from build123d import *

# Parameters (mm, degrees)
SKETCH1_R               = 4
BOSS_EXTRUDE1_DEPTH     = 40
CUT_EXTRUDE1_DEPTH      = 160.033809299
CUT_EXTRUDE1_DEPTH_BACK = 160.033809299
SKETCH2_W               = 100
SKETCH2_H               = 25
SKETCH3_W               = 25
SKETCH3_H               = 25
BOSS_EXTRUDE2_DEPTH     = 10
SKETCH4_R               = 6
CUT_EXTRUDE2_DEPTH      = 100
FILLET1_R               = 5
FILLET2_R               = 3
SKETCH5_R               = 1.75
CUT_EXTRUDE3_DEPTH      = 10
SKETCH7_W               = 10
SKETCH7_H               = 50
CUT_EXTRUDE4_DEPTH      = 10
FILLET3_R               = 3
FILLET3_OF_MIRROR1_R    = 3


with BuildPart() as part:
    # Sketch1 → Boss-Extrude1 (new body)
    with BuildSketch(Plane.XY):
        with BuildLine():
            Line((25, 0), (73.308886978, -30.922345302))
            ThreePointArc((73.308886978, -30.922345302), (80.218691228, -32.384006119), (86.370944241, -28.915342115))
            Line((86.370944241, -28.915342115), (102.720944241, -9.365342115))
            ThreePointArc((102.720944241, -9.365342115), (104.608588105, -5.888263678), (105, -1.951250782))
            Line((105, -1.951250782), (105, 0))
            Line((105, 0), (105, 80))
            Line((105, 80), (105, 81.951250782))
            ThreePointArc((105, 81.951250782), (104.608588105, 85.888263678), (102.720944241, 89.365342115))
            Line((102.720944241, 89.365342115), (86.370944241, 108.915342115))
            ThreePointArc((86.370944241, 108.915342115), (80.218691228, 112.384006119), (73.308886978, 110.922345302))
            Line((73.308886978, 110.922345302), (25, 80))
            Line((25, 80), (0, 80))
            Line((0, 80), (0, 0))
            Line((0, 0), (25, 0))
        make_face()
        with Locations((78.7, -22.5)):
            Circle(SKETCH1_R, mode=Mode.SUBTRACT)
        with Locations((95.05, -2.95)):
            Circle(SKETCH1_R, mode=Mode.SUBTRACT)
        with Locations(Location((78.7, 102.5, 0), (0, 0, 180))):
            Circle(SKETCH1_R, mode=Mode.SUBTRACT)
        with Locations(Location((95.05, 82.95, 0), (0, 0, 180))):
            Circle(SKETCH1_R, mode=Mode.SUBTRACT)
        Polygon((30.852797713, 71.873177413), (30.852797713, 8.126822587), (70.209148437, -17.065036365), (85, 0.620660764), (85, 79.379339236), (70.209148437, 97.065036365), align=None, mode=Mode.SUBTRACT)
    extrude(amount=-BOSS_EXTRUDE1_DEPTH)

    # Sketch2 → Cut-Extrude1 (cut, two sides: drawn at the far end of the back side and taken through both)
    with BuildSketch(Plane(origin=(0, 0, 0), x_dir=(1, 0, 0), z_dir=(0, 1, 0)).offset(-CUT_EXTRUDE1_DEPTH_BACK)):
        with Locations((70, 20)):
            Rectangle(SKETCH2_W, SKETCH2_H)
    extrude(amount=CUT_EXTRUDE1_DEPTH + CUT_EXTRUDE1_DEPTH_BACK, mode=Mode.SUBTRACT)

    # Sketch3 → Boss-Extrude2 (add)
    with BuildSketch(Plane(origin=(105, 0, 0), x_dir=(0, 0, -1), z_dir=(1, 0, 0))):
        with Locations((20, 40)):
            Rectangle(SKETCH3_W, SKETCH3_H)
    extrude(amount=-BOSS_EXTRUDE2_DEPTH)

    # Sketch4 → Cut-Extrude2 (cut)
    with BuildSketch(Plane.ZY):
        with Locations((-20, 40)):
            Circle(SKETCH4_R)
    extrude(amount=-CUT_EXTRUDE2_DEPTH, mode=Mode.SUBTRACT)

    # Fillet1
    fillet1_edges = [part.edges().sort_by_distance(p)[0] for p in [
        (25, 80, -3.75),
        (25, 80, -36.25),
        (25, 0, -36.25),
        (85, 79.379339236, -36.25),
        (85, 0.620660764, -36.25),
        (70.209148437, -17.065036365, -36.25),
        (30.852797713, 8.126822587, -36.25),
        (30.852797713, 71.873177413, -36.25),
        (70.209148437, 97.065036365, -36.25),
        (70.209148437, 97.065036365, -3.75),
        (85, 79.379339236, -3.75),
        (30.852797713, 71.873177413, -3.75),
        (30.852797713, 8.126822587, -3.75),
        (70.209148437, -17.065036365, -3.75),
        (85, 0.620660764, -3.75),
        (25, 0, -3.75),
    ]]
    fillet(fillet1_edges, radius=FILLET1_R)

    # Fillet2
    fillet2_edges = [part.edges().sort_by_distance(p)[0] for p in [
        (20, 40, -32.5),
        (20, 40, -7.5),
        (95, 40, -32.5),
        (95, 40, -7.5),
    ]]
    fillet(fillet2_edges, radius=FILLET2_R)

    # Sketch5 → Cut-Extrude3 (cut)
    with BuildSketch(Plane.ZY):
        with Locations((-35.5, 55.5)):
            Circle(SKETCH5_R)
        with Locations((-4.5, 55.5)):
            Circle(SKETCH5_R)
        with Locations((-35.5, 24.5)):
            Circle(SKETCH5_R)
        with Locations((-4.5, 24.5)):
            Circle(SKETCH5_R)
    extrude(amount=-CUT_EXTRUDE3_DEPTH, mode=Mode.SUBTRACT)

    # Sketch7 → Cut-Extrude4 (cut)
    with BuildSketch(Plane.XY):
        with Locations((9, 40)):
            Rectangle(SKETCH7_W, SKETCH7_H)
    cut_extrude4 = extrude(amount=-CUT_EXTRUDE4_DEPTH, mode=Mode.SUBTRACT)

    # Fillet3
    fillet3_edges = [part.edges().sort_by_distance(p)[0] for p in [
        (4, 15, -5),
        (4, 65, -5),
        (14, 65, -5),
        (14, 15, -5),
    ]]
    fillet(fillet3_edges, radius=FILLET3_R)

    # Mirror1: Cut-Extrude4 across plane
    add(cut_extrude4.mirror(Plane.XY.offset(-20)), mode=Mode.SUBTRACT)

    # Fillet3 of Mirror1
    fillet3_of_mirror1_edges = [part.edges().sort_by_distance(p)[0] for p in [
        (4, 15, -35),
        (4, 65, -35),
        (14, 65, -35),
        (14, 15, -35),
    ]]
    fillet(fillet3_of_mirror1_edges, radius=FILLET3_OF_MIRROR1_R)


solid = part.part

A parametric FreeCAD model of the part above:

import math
import FreeCAD as App
import Part
import Sketcher
from FreeCAD import Vector


def edges_at(feature, points):
    """Names of the edges that pass closest to the given points."""
    edges = feature.Shape.Edges
    near = lambda p: min(range(len(edges)), key=lambda i: edges[i].distToShape(Part.Vertex(*p))[0])
    return sorted({f"Edge{near(p) + 1}" for p in points})

doc = App.newDocument("Part")
body = doc.addObject("PartDesign::Body", "Body")

# Sketch on XY plane
sketch1 = body.newObject("Sketcher::SketchObject", "Sketch")
sketch1.AttachmentSupport = (doc.getObject("XY_Plane"), [""])
sketch1.MapMode = "FlatFace"
sketch1.addGeometry(Part.LineSegment(Vector(25, 0, 0), Vector(73.308887, -30.922345, 0)), False)
sketch1.addGeometry(Part.ArcOfCircle(Part.Circle(Vector(78.7, -22.5, 0), Vector(0, 0, 1), 10), math.radians(-122.623162), math.radians(-39.906317)), False)
sketch1.addGeometry(Part.LineSegment(Vector(86.370944, -28.915342, 0), Vector(102.720944, -9.365342, 0)), False)
sketch1.addGeometry(Part.ArcOfCircle(Part.Circle(Vector(95.05, -2.95, 0), Vector(0, 0, 1), 10), math.radians(-39.906317), math.radians(5.731968)), False)
sketch1.addGeometry(Part.LineSegment(Vector(105, -1.951251, 0), Vector(105, 81.951251, 0)), False)
sketch1.addGeometry(Part.ArcOfCircle(Part.Circle(Vector(95.05, 82.95, 0), Vector(0, 0, 1), 10), math.radians(-5.731968), math.radians(39.906317)), False)
sketch1.addGeometry(Part.LineSegment(Vector(102.720944, 89.365342, 0), Vector(86.370944, 108.915342, 0)), False)
sketch1.addGeometry(Part.ArcOfCircle(Part.Circle(Vector(78.7, 102.5, 0), Vector(0, 0, 1), 10), math.radians(39.906317), math.radians(122.623162)), False)
sketch1.addGeometry(Part.LineSegment(Vector(73.308887, 110.922345, 0), Vector(25, 80, 0)), False)
sketch1.addGeometry(Part.LineSegment(Vector(25, 80, 0), Vector(0, 80, 0)), False)
sketch1.addGeometry(Part.LineSegment(Vector(0, 80, 0), Vector(0, 0, 0)), False)
sketch1.addGeometry(Part.LineSegment(Vector(0, 0, 0), Vector(25, 0, 0)), False)
sketch1.addGeometry(Part.Circle(Vector(78.7, -22.5, 0), Vector(0, 0, 1), 4), False)
sketch1.addGeometry(Part.Circle(Vector(95.05, -2.95, 0), Vector(0, 0, 1), 4), False)
sketch1.addGeometry(Part.LineSegment(Vector(30.852798, 8.126823, 0), Vector(30.852798, 71.873177, 0)), False)
sketch1.addGeometry(Part.LineSegment(Vector(30.852798, 71.873177, 0), Vector(70.209148, 97.065036, 0)), False)
sketch1.addGeometry(Part.LineSegment(Vector(70.209148, 97.065036, 0), Vector(85, 79.379339, 0)), False)
sketch1.addGeometry(Part.LineSegment(Vector(85, 79.379339, 0), Vector(85, 0.620661, 0)), False)
sketch1.addGeometry(Part.LineSegment(Vector(85, 0.620661, 0), Vector(70.209148, -17.065036, 0)), False)
sketch1.addGeometry(Part.LineSegment(Vector(70.209148, -17.065036, 0), Vector(30.852798, 8.126823, 0)), False)
sketch1.addGeometry(Part.Circle(Vector(78.7, 102.5, 0), Vector(0, 0, 1), 4), False)
sketch1.addGeometry(Part.Circle(Vector(95.05, 82.95, 0), Vector(0, 0, 1), 4), False)
sketch1.addConstraint(Sketcher.Constraint("Tangent", 0, 2, 1, 1))
sketch1.addConstraint(Sketcher.Constraint("Tangent", 1, 2, 2, 1))
sketch1.addConstraint(Sketcher.Constraint("Tangent", 2, 2, 3, 1))
sketch1.addConstraint(Sketcher.Constraint("Coincident", 3, 2, 4, 1))
sketch1.addConstraint(Sketcher.Constraint("Coincident", 4, 2, 5, 1))
sketch1.addConstraint(Sketcher.Constraint("Tangent", 5, 2, 6, 1))
sketch1.addConstraint(Sketcher.Constraint("Tangent", 6, 2, 7, 1))
sketch1.addConstraint(Sketcher.Constraint("Tangent", 7, 2, 8, 1))
sketch1.addConstraint(Sketcher.Constraint("Coincident", 8, 2, 9, 1))
sketch1.addConstraint(Sketcher.Constraint("Coincident", 9, 2, 10, 1))
sketch1.addConstraint(Sketcher.Constraint("Coincident", 10, 2, 11, 1))
sketch1.addConstraint(Sketcher.Constraint("Coincident", 11, 2, 0, 1))
sketch1.addConstraint(Sketcher.Constraint("Coincident", 14, 2, 15, 1))
sketch1.addConstraint(Sketcher.Constraint("Coincident", 15, 2, 16, 1))
sketch1.addConstraint(Sketcher.Constraint("Coincident", 16, 2, 17, 1))
sketch1.addConstraint(Sketcher.Constraint("Coincident", 17, 2, 18, 1))
sketch1.addConstraint(Sketcher.Constraint("Coincident", 18, 2, 19, 1))
sketch1.addConstraint(Sketcher.Constraint("Coincident", 19, 2, 14, 1))
sketch1.addConstraint(Sketcher.Constraint("Vertical", 4))
sketch1.addConstraint(Sketcher.Constraint("Horizontal", 9))
sketch1.addConstraint(Sketcher.Constraint("Vertical", 10))
sketch1.addConstraint(Sketcher.Constraint("Horizontal", 11))
sketch1.addConstraint(Sketcher.Constraint("Vertical", 14))
sketch1.addConstraint(Sketcher.Constraint("Vertical", 17))
sketch1.addConstraint(Sketcher.Constraint("Coincident", 10, 2, -1, 1))
sketch1.addConstraint(Sketcher.Constraint("Coincident", 12, 3, 1, 3))
sketch1.addConstraint(Sketcher.Constraint("Coincident", 13, 3, 3, 3))
sketch1.addConstraint(Sketcher.Constraint("Coincident", 20, 3, 7, 3))
sketch1.addConstraint(Sketcher.Constraint("Coincident", 21, 3, 5, 3))
sketch1.addConstraint(Sketcher.Constraint("Equal", 1, 3))
sketch1.addConstraint(Sketcher.Constraint("Equal", 3, 5))
sketch1.addConstraint(Sketcher.Constraint("Equal", 5, 7))
sketch1.addConstraint(Sketcher.Constraint("Equal", 12, 13))
sketch1.addConstraint(Sketcher.Constraint("Equal", 13, 20))
sketch1.addConstraint(Sketcher.Constraint("Equal", 20, 21))
sketch1.addConstraint(Sketcher.Constraint("Parallel", 8, 15))
sketch1.addConstraint(Sketcher.Constraint("Parallel", 6, 16))
sketch1.addConstraint(Sketcher.Constraint("Parallel", 2, 18))
sketch1.addConstraint(Sketcher.Constraint("Parallel", 0, 19))
sketch1.addConstraint(Sketcher.Constraint("Vertical", 3, 3, 5, 3))
sketch1.addConstraint(Sketcher.Constraint("Vertical", 1, 3, 7, 3))
sketch1.addConstraint(Sketcher.Constraint("Vertical", 2, 2, 5, 2))
sketch1.addConstraint(Sketcher.Constraint("Vertical", 0, 2, 7, 2))
sketch1.addConstraint(Sketcher.Constraint("Vertical", 8, 2, 11, 2))
sketch1.addConstraint(Sketcher.Constraint("Vertical", 15, 2, 18, 2))
sketch1.addConstraint(Sketcher.Constraint("Diameter", 12, 8.0))
sketch1.addConstraint(Sketcher.Constraint("Radius", 1, 10.0))
sketch1.addConstraint(Sketcher.Constraint("DistanceX", 9, 2, 9, 1, 25.0))
sketch1.addConstraint(Sketcher.Constraint("DistanceY", 10, 2, 10, 1, 80.0))
sketch1.addConstraint(Sketcher.Constraint("DistanceX", -1, 1, 3, 2, 105.0))
sketch1.addConstraint(Sketcher.Constraint("DistanceX", -1, 1, 16, 2, 85.0))
sketch1.addConstraint(Sketcher.Constraint("DistanceY", 1, 3, 7, 3, 125.0))
sketch1.addConstraint(Sketcher.Constraint("DistanceX", -1, 1, 1, 3, 78.7))
sketch1.addConstraint(Sketcher.Constraint("DistanceY", 3, 3, 5, 3, 85.9))
sketch1.addConstraint(Sketcher.Constraint("DistanceX", -1, 1, 3, 3, 95.05))
sketch1.addConstraint(Sketcher.Constraint("DistanceY", 17, 2, 17, 1, 78.758678))
sketch1.addConstraint(Sketcher.Constraint("DistanceY", 14, 1, 14, 2, 63.746355))
sketch1.addConstraint(Sketcher.Constraint("DistanceX", -1, 1, 15, 2, 70.209148))
sketch1.addConstraint(Sketcher.Constraint("DistanceY", -1, 1, 16, 2, 79.379339))
pad1 = body.newObject("PartDesign::Pad", "Pad")
pad1.Profile = sketch1
pad1.Length = 40
pad1.Reversed = True

# Sketch on XZ plane
sketch2 = body.newObject("Sketcher::SketchObject", "Sketch001")
sketch2.AttachmentSupport = (doc.getObject("XZ_Plane"), [""])
sketch2.MapMode = "FlatFace"
sketch2.addGeometry(Part.LineSegment(Vector(20, -32.5, 0), Vector(20, -7.5, 0)), False)
sketch2.addGeometry(Part.LineSegment(Vector(20, -7.5, 0), Vector(120, -7.5, 0)), False)
sketch2.addGeometry(Part.LineSegment(Vector(120, -7.5, 0), Vector(120, -32.5, 0)), False)
sketch2.addGeometry(Part.LineSegment(Vector(120, -32.5, 0), Vector(20, -32.5, 0)), False)
sketch2.addConstraint(Sketcher.Constraint("Coincident", 0, 2, 1, 1))
sketch2.addConstraint(Sketcher.Constraint("Coincident", 1, 2, 2, 1))
sketch2.addConstraint(Sketcher.Constraint("Coincident", 2, 2, 3, 1))
sketch2.addConstraint(Sketcher.Constraint("Coincident", 3, 2, 0, 1))
sketch2.addConstraint(Sketcher.Constraint("Vertical", 0))
sketch2.addConstraint(Sketcher.Constraint("Horizontal", 1))
sketch2.addConstraint(Sketcher.Constraint("Vertical", 2))
sketch2.addConstraint(Sketcher.Constraint("Horizontal", 3))
sketch2.addConstraint(Sketcher.Constraint("DistanceX", 1, 1, 1, 2, 100.0))
sketch2.addConstraint(Sketcher.Constraint("DistanceY", 0, 1, 0, 2, 25.0))
sketch2.addConstraint(Sketcher.Constraint("DistanceX", -1, 1, 0, 2, 20.0))
sketch2.addConstraint(Sketcher.Constraint("DistanceY", 0, 2, -1, 1, 7.5))
pocket1 = body.newObject("PartDesign::Pocket", "Pocket")
pocket1.Profile = sketch2
pocket1.Type = "ThroughAll"
pocket1.Midplane = True

# Sketch on YZ plane
sketch3 = body.newObject("Sketcher::SketchObject", "Sketch002")
sketch3.AttachmentSupport = (doc.getObject("YZ_Plane"), [""])
sketch3.MapMode = "FlatFace"
sketch3.AttachmentOffset = App.Placement(Vector(0, 0, 105), App.Rotation())
sketch3.addGeometry(Part.LineSegment(Vector(52.5, -7.5, 0), Vector(27.5, -7.5, 0)), False)
sketch3.addGeometry(Part.LineSegment(Vector(27.5, -7.5, 0), Vector(27.5, -32.5, 0)), False)
sketch3.addGeometry(Part.LineSegment(Vector(27.5, -32.5, 0), Vector(52.5, -32.5, 0)), False)
sketch3.addGeometry(Part.LineSegment(Vector(52.5, -32.5, 0), Vector(52.5, -7.5, 0)), False)
sketch3.addConstraint(Sketcher.Constraint("Coincident", 0, 2, 1, 1))
sketch3.addConstraint(Sketcher.Constraint("Coincident", 1, 2, 2, 1))
sketch3.addConstraint(Sketcher.Constraint("Coincident", 2, 2, 3, 1))
sketch3.addConstraint(Sketcher.Constraint("Coincident", 3, 2, 0, 1))
sketch3.addConstraint(Sketcher.Constraint("Horizontal", 0))
sketch3.addConstraint(Sketcher.Constraint("Vertical", 1))
sketch3.addConstraint(Sketcher.Constraint("Horizontal", 2))
sketch3.addConstraint(Sketcher.Constraint("Vertical", 3))
sketch3.addConstraint(Sketcher.Constraint("Equal", 2, 1))
sketch3.addConstraint(Sketcher.Constraint("DistanceX", 0, 2, 0, 1, 25.0))
sketch3.addConstraint(Sketcher.Constraint("DistanceX", -1, 1, 0, 2, 27.5))
sketch3.addConstraint(Sketcher.Constraint("DistanceY", 0, 2, -1, 1, 7.5))
pad2 = body.newObject("PartDesign::Pad", "Pad001")
pad2.Profile = sketch3
pad2.Length = 10
pad2.Reversed = True

# Sketch on YZ plane
sketch4 = body.newObject("Sketcher::SketchObject", "Sketch003")
sketch4.AttachmentSupport = (doc.getObject("YZ_Plane"), [""])
sketch4.MapMode = "FlatFace"
sketch4.addGeometry(Part.Circle(Vector(40, -20, 0), Vector(0, 0, 1), 6), False)
sketch4.addConstraint(Sketcher.Constraint("Diameter", 0, 12.0))
sketch4.addConstraint(Sketcher.Constraint("DistanceX", -1, 1, 0, 3, 40.0))
sketch4.addConstraint(Sketcher.Constraint("DistanceY", 0, 3, -1, 1, 20.0))
pocket2 = body.newObject("PartDesign::Pocket", "Pocket001")
pocket2.Profile = sketch4
pocket2.Length = 100
pocket2.Reversed = True
doc.recompute()

fillet = body.newObject("PartDesign::Fillet", "Fillet")
fillet.Base = (pocket2, edges_at(pocket2, [
    (25, 80, -3.75),
    (25, 80, -36.25),
    (25, 0, -36.25),
    (85, 79.379, -36.25),
    (85, 0.621, -36.25),
    (70.209, -17.065, -36.25),
    (30.853, 8.127, -36.25),
    (30.853, 71.873, -36.25),
    (70.209, 97.065, -36.25),
    (70.209, 97.065, -3.75),
    (85, 79.379, -3.75),
    (30.853, 71.873, -3.75),
    (30.853, 8.127, -3.75),
    (70.209, -17.065, -3.75),
    (85, 0.621, -3.75),
    (25, 0, -3.75),
]))
fillet.Radius = 5
doc.recompute()

fillet2 = body.newObject("PartDesign::Fillet", "Fillet001")
fillet2.Base = (fillet, edges_at(fillet, [
    (20, 40, -32.5),
    (20, 40, -7.5),
    (95, 40, -32.5),
    (95, 40, -7.5),
]))
fillet2.Radius = 3

# Sketch on YZ plane
sketch5 = body.newObject("Sketcher::SketchObject", "Sketch004")
sketch5.AttachmentSupport = (doc.getObject("YZ_Plane"), [""])
sketch5.MapMode = "FlatFace"
sketch5.addGeometry(Part.Circle(Vector(55.5, -35.5, 0), Vector(0, 0, 1), 1.75), False)
sketch5.addGeometry(Part.Circle(Vector(55.5, -4.5, 0), Vector(0, 0, 1), 1.75), False)
sketch5.addGeometry(Part.Circle(Vector(24.5, -35.5, 0), Vector(0, 0, 1), 1.75), False)
sketch5.addGeometry(Part.Circle(Vector(24.5, -4.5, 0), Vector(0, 0, 1), 1.75), False)
sketch5.addConstraint(Sketcher.Constraint("Equal", 0, 1))
sketch5.addConstraint(Sketcher.Constraint("Equal", 1, 2))
sketch5.addConstraint(Sketcher.Constraint("Equal", 2, 3))
sketch5.addConstraint(Sketcher.Constraint("Horizontal", 0, 3, 2, 3))
sketch5.addConstraint(Sketcher.Constraint("Horizontal", 1, 3, 3, 3))
sketch5.addConstraint(Sketcher.Constraint("Vertical", 0, 3, 1, 3))
sketch5.addConstraint(Sketcher.Constraint("Vertical", 2, 3, 3, 3))
sketch5.addConstraint(Sketcher.Constraint("Diameter", 0, 3.5))
sketch5.addConstraint(Sketcher.Constraint("DistanceY", 0, 3, 1, 3, 31.0))
sketch5.addConstraint(Sketcher.Constraint("DistanceX", 2, 3, 0, 3, 31.0))
sketch5.addConstraint(Sketcher.Constraint("DistanceX", -1, 1, 0, 3, 55.5))
sketch5.addConstraint(Sketcher.Constraint("DistanceY", 0, 3, -1, 1, 35.5))
pocket3 = body.newObject("PartDesign::Pocket", "Pocket002")
pocket3.Profile = sketch5
pocket3.Length = 10
pocket3.Reversed = True

# Sketch on XY plane
sketch6 = body.newObject("Sketcher::SketchObject", "Sketch005")
sketch6.AttachmentSupport = (doc.getObject("XY_Plane"), [""])
sketch6.MapMode = "FlatFace"
sketch6.addGeometry(Part.LineSegment(Vector(4, 65, 0), Vector(4, 15, 0)), False)
sketch6.addGeometry(Part.LineSegment(Vector(4, 15, 0), Vector(14, 15, 0)), False)
sketch6.addGeometry(Part.LineSegment(Vector(14, 15, 0), Vector(14, 65, 0)), False)
sketch6.addGeometry(Part.LineSegment(Vector(14, 65, 0), Vector(4, 65, 0)), False)
sketch6.addConstraint(Sketcher.Constraint("Coincident", 0, 2, 1, 1))
sketch6.addConstraint(Sketcher.Constraint("Coincident", 1, 2, 2, 1))
sketch6.addConstraint(Sketcher.Constraint("Coincident", 2, 2, 3, 1))
sketch6.addConstraint(Sketcher.Constraint("Coincident", 3, 2, 0, 1))
sketch6.addConstraint(Sketcher.Constraint("Vertical", 0))
sketch6.addConstraint(Sketcher.Constraint("Horizontal", 1))
sketch6.addConstraint(Sketcher.Constraint("Vertical", 2))
sketch6.addConstraint(Sketcher.Constraint("Horizontal", 3))
sketch6.addConstraint(Sketcher.Constraint("DistanceX", 1, 1, 1, 2, 10.0))
sketch6.addConstraint(Sketcher.Constraint("DistanceY", 0, 2, 0, 1, 50.0))
sketch6.addConstraint(Sketcher.Constraint("DistanceX", -1, 1, 0, 2, 4.0))
sketch6.addConstraint(Sketcher.Constraint("DistanceY", -1, 1, 0, 2, 15.0))
pocket4 = body.newObject("PartDesign::Pocket", "Pocket003")
pocket4.Profile = sketch6
pocket4.Length = 10
doc.recompute()

fillet3 = body.newObject("PartDesign::Fillet", "Fillet002")
fillet3.Base = (pocket4, edges_at(pocket4, [
    (4, 15, -5),
    (4, 65, -5),
    (14, 65, -5),
    (14, 15, -5),
]))
fillet3.Radius = 3
doc.recompute()

datumplane = body.newObject("PartDesign::Plane", "DatumPlane")
datumplane.AttachmentSupport = (doc.getObject("XY_Plane"), [""])
datumplane.MapMode = "FlatFace"
datumplane.AttachmentOffset = App.Placement(Vector(0, 0, -20), App.Rotation())
mirrored = body.newObject("PartDesign::Mirrored", "Mirrored")
mirrored.Originals = [pocket4]
mirrored.MirrorPlane = (datumplane, [""])
body.Tip = mirrored
doc.recompute()

fillet4 = body.newObject("PartDesign::Fillet", "Fillet003")
fillet4.Base = (mirrored, edges_at(mirrored, [
    (4, 15, -35),
    (4, 65, -35),
    (14, 65, -35),
    (14, 15, -35),
]))
fillet4.Radius = 3

doc.recompute()
